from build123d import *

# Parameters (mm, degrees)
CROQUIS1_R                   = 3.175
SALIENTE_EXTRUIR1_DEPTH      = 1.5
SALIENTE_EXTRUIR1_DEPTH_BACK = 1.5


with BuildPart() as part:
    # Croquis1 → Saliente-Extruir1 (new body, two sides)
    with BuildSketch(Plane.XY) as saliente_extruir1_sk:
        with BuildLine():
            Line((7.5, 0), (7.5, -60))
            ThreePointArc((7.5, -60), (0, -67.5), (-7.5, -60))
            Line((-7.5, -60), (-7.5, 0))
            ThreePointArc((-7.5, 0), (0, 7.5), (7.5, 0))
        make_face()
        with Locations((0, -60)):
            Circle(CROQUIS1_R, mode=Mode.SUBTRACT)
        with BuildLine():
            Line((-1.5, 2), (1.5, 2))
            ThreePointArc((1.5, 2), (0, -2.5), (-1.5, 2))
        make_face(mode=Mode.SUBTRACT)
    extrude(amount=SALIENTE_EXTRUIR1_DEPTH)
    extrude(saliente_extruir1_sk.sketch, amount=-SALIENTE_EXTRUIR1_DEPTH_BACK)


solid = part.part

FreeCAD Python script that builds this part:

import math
import FreeCAD as App
import Part
import Sketcher
from FreeCAD import Vector

doc = App.newDocument("Part")
body = doc.addObject("PartDesign::Body", "Body")

# Sketch on XY plane
sketch1 = body.newObject("Sketcher::SketchObject", "Sketch")
sketch1.AttachmentSupport = (doc.getObject("XY_Plane"), [""])
sketch1.MapMode = "FlatFace"
sketch1.addGeometry(Part.LineSegment(Vector(7.5, -60, 0), Vector(7.5, 0, 0)), False)
sketch1.addGeometry(Part.ArcOfCircle(Part.Circle(Vector(0, 0, 0), Vector(0, 0, 1), 7.5), math.radians(0), math.radians(180)), False)
sketch1.addGeometry(Part.LineSegment(Vector(-7.5, 0, 0), Vector(-7.5, -60, 0)), False)
sketch1.addGeometry(Part.ArcOfCircle(Part.Circle(Vector(0, -60, 0), Vector(0, 0, 1), 7.5), math.radians(180), math.radians(360)), False)
sketch1.addGeometry(Part.Circle(Vector(0, -60, 0), Vector(0, 0, 1), 3.175), False)
sketch1.addGeometry(Part.LineSegment(Vector(-1.5, 2, 0), Vector(1.5, 2, 0)), False)
sketch1.addGeometry(Part.ArcOfCircle(Part.Circle(Vector(0, 0, 0), Vector(0, 0, 1), 2.5), math.radians(126.869898), math.radians(413.130102)), False)
sketch1.addConstraint(Sketcher.Constraint("Tangent", 0, 2, 1, 1))
sketch1.addConstraint(Sketcher.Constraint("Tangent", 1, 2, 2, 1))
sketch1.addConstraint(Sketcher.Constraint("Tangent", 2, 2, 3, 1))
sketch1.addConstraint(Sketcher.Constraint("Tangent", 3, 2, 0, 1))
sketch1.addConstraint(Sketcher.Constraint("Coincident", 5, 1, 6, 1))
sketch1.addConstraint(Sketcher.Constraint("Coincident", 6, 2, 5, 2))
sketch1.addConstraint(Sketcher.Constraint("Vertical", 0))
sketch1.addConstraint(Sketcher.Constraint("Vertical", 2))
sketch1.addConstraint(Sketcher.Constraint("Horizontal", 5))
sketch1.addConstraint(Sketcher.Constraint("Coincident", 1, 3, -1, 1))
sketch1.addConstraint(Sketcher.Constraint("Coincident", 6, 3, -1, 1))
sketch1.addConstraint(Sketcher.Constraint("Coincident", 4, 3, 3, 3))
sketch1.addConstraint(Sketcher.Constraint("Radius", 1, 7.5))
sketch1.addConstraint(Sketcher.Constraint("Radius", 6, 2.5))
sketch1.addConstraint(Sketcher.Constraint("Diameter", 4, 6.35))
sketch1.addConstraint(Sketcher.Constraint("DistanceX", 5, 1, 5, 2, 3.0))
sketch1.addConstraint(Sketcher.Constraint("DistanceY", 0, 1, 0, 2, 60.0))
pad1 = body.newObject("PartDesign::Pad", "Pad")
pad1.Profile = sketch1
pad1.Type = "TwoLengths"
pad1.Length = 1.5
pad1.Length2 = 1.5

doc.recompute()
